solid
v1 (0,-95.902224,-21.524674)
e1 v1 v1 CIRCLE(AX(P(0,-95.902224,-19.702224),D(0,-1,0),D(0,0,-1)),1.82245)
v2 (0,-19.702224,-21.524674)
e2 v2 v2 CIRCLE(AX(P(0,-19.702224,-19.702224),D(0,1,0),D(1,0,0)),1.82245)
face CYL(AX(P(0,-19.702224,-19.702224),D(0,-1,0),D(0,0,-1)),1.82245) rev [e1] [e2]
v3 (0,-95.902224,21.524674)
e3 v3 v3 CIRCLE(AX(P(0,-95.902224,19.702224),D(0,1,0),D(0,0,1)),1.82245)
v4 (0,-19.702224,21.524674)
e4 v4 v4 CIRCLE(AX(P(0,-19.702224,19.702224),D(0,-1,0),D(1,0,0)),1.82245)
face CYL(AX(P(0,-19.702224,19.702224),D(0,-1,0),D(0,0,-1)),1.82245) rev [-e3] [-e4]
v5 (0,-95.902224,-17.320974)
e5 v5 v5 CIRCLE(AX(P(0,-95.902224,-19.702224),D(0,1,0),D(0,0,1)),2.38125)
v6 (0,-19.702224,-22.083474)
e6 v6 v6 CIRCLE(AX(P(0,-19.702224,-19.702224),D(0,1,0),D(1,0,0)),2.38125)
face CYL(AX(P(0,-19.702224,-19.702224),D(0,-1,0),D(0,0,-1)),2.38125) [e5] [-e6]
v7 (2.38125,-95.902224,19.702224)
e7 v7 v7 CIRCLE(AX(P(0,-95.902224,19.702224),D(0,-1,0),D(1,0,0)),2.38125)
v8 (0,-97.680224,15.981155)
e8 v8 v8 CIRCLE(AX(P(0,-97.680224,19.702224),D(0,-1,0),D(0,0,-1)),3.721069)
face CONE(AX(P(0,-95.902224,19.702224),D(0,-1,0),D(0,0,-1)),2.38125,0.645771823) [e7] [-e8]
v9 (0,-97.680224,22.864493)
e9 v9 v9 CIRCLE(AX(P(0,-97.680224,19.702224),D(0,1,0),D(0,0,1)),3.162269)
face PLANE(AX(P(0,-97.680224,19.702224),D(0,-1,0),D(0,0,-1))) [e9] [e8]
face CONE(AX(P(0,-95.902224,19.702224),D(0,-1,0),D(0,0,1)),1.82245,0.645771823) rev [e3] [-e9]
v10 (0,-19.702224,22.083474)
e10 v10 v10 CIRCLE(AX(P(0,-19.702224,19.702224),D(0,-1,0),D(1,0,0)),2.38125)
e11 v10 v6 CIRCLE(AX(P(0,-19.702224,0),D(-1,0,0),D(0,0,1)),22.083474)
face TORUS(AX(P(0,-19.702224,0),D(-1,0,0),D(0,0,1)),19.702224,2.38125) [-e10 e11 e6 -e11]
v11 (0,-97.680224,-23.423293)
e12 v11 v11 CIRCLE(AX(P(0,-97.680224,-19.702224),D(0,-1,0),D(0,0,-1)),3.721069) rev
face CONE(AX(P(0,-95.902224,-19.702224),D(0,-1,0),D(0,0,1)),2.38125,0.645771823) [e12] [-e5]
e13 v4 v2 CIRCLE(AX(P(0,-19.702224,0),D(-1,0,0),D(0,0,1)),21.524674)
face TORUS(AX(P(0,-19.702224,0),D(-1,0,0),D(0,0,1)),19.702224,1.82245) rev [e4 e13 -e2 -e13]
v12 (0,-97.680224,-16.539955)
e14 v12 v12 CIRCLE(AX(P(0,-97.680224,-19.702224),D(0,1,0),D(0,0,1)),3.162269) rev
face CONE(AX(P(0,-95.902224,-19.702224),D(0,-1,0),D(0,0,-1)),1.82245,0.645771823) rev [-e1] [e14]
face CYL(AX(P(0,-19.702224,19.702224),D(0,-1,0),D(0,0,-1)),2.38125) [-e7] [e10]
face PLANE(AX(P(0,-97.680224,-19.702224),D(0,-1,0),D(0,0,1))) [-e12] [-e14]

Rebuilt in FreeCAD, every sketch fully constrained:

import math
import FreeCAD as App
import Part
import Sketcher

V = App.Vector
Q = App.Units.Quantity

doc = App.newDocument("Part")
params = doc.addObject("Spreadsheet::Sheet", "Params")
for row, (alias, value) in enumerate([
    ("sketch1_diameter", "0.1875 in"),
    ("sketch2_width", "3 in"),
    ("sketch3_diameter", "0.1875 in"),
    ("pad1_length", "0.07 in"),
    ("pad1_taper", "37 deg"),
    ("pocket1_taper", "37 deg"),
], start=1):
    params.set(f"A{row}", alias)
    params.set(f"B{row}", "=" + value)
    params.setAlias(f"B{row}", alias)

body = doc.addObject("PartDesign::Body", "Body")

sketch1 = body.newObject("Sketcher::SketchObject", "Sketch")
sketch1.AttachmentSupport = (doc.getObject("XY_Plane"), [""])
sketch1.MapMode = "FlatFace"
sketch1.addGeometry(Part.Circle(V(0, 0, 0), V(0, 0, 1), 2.4), False)
sketch1.addGeometry(Part.Circle(V(0, 0, 0), V(0, 0, 1), 1.8), False)
sketch1.addConstraint(Sketcher.Constraint("Coincident", 0, 3, -1, 1))
sketch1.addConstraint(Sketcher.Constraint("Coincident", 1, 3, -1, 1))
sketch1.addConstraint(Sketcher.Constraint("Diameter", 0, Q("0.1875 in")))
sketch1.addConstraint(Sketcher.Constraint("Diameter", 1, Q("0.1435 in")))
sketch1.setExpression("Constraints[2]", "Params.sketch1_diameter")

sketch2 = body.newObject("Sketcher::SketchObject", "Sketch001")
sketch2.AttachmentSupport = (doc.getObject("YZ_Plane"), [""])
sketch2.MapMode = "FlatFace"
sketch2.addGeometry(Part.LineSegment(V(-96, 20, 0), V(-20, 20, 0)), False)
sketch2.addGeometry(Part.ArcOfCircle(Part.Circle(V(-20, 0, 0), V(0, 0, 1), 20), math.radians(0), math.radians(90)), False)
sketch2.addConstraint(Sketcher.Constraint("Tangent", 0, 2, 1, 2))
sketch2.addConstraint(Sketcher.Constraint("Horizontal", 0))
sketch2.addConstraint(Sketcher.Constraint("Coincident", 1, 1, -1, 1))
sketch2.addConstraint(Sketcher.Constraint("PointOnObject", 1, 3, -1))
sketch2.addConstraint(Sketcher.Constraint("DistanceX", 0, 1, 0, 2, Q("3 in")))
sketch2.addConstraint(Sketcher.Constraint("Radius", 1, Q("19.702224 mm")))
sketch2.setExpression("Constraints[4]", "Params.sketch2_width")
doc.recompute()

additivepipe = body.newObject("PartDesign::AdditivePipe", "AdditivePipe")
additivepipe.Profile = sketch1
additivepipe.Spine = (sketch2, ["Edge1", "Edge2"])

sketch3 = body.newObject("Sketcher::SketchObject", "Sketch002")
sketch3.AttachmentSupport = (doc.getObject("XZ_Plane"), [""])
sketch3.MapMode = "FlatFace"
sketch3.AttachmentOffset = App.Placement(V(0, 0, 95.902224), App.Rotation())
sketch3.addGeometry(Part.Circle(V(0, 19.7, 0), V(0, 0, 1), 2.4), False)
sketch3.addConstraint(Sketcher.Constraint("PointOnObject", 0, 3, -2))
sketch3.addConstraint(Sketcher.Constraint("Diameter", 0, Q("0.1875 in")))
sketch3.addConstraint(Sketcher.Constraint("DistanceY", -1, 1, 0, 3, Q("19.702224 mm")))
sketch3.setExpression("Constraints[1]", "Params.sketch3_diameter")
pad1 = body.newObject("PartDesign::Pad", "Pad")
pad1.Profile = sketch3
pad1.setExpression("Length", "Params.pad1_length")
pad1.setExpression("TaperAngle", "Params.pad1_taper")

sketch4 = body.newObject("Sketcher::SketchObject", "Sketch003")
sketch4.AttachmentSupport = (doc.getObject("XZ_Plane"), [""])
sketch4.MapMode = "FlatFace"
sketch4.AttachmentOffset = App.Placement(V(0, 0, 95.902224), App.Rotation())
sketch4.addGeometry(Part.Circle(V(0, 19.7, 0), V(0, 0, 1), 1.8), False)
sketch4.addConstraint(Sketcher.Constraint("PointOnObject", 0, 3, -2))
sketch4.addConstraint(Sketcher.Constraint("Diameter", 0, Q("0.1435 in")))
sketch4.addConstraint(Sketcher.Constraint("DistanceY", -1, 1, 0, 3, Q("19.702224 mm")))
pocket1 = body.newObject("PartDesign::Pocket", "Pocket")
pocket1.Profile = sketch4
pocket1.Type = "ThroughAll"
pocket1.Reversed = True
pocket1.setExpression("TaperAngle", "Params.pocket1_taper")
doc.recompute()

mirrored = body.newObject("PartDesign::Mirrored", "Mirrored")
mirrored.Originals = [additivepipe, pad1, pocket1]
mirrored.MirrorPlane = (doc.getObject("XY_Plane"), [""])
body.Tip = mirrored

doc.recompute()
